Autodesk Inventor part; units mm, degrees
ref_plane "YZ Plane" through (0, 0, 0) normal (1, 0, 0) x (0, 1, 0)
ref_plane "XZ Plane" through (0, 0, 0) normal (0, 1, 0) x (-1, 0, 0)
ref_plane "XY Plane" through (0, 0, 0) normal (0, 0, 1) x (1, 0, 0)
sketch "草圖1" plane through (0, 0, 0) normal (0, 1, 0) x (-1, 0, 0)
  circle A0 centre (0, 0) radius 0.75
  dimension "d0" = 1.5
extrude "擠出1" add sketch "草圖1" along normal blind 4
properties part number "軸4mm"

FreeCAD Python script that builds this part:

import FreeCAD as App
import Part
import Sketcher
from FreeCAD import Vector
Q = App.Units.Quantity

doc = App.newDocument("Part")
params = doc.addObject("Spreadsheet::Sheet", "Params")
for row, (alias, value) in enumerate([
    ("sketch1_diameter", "1.5 mm"),
    ("pad1_length", "4 mm"),
], start=1):
    params.set(f"A{row}", alias)
    params.set(f"B{row}", "=" + value)
    params.setAlias(f"B{row}", alias)

body = doc.addObject("PartDesign::Body", "Body")

# Sketch on XZ plane
sketch1 = doc.addObject("Sketcher::SketchObject", "Sketch")
body.addObject(sketch1)
sketch1.AttachmentSupport = (doc.XZ_Plane, [""])
sketch1.MapMode = "FlatFace"
sketch1.addGeometry(Part.Circle(Vector(0, 0, 0), Vector(0, 0, 1), 0.75), False)
sketch1.addConstraint([
    Sketcher.Constraint("Coincident", 0, 3, -1, 1),
    Sketcher.Constraint("Diameter", 0, Q("1.5 mm")),
])
sketch1.setExpression("Constraints[1]", "Params.sketch1_diameter")
pad1 = doc.addObject("PartDesign::Pad", "Pad")
body.addObject(pad1)
pad1.Profile = sketch1
pad1.setExpression("Length", "Params.pad1_length")
pad1.Reversed = True

doc.recompute()
